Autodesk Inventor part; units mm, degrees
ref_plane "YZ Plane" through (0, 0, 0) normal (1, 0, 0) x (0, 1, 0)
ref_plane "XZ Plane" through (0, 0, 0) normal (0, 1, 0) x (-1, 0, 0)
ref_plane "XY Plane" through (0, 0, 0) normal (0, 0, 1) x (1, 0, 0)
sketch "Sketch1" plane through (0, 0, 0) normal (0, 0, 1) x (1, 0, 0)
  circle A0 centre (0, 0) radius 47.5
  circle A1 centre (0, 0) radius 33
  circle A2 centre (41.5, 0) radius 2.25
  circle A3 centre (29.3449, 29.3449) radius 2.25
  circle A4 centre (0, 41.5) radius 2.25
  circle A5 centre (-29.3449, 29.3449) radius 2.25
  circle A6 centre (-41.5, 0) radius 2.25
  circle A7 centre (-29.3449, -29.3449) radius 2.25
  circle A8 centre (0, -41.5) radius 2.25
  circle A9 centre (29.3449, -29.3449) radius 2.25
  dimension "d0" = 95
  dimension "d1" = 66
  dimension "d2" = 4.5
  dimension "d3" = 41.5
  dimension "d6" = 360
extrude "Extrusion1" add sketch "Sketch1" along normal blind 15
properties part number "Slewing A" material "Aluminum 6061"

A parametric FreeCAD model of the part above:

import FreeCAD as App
import Part
import Sketcher

V = App.Vector

doc = App.newDocument("Part")
params = doc.addObject("Spreadsheet::Sheet", "Params")
for row, (alias, value) in enumerate([
    ("sketch1_diameter", "95 mm"),
    ("sketch1_diameter2", "66 mm"),
    ("sketch1_diameter3", "4.5 mm"),
    ("pad1_length", "15 mm"),
], start=1):
    params.set(f"A{row}", alias)
    params.set(f"B{row}", "=" + value)
    params.setAlias(f"B{row}", alias)

body = doc.addObject("PartDesign::Body", "Body")

# Sketch on XY plane
sketch1 = body.newObject("Sketcher::SketchObject", "Sketch")
sketch1.AttachmentSupport = (doc.getObject("XY_Plane"), [""])
sketch1.MapMode = "FlatFace"
sketch1.addGeometry([
    Part.Circle(V(0, 0, 0), V(0, 0, 1), 47.5),  # 0
    Part.Circle(V(-29.3, -29.3, 0), V(0, 0, 1), 2.2),  # 1
    Part.Circle(V(0, -41.5, 0), V(0, 0, 1), 2.2),  # 2
    Part.Circle(V(29.3, -29.3, 0), V(0, 0, 1), 2.2),  # 3
    Part.Circle(V(-41.5, 0, 0), V(0, 0, 1), 2.2),  # 4
    Part.Circle(V(-29.3, 29.3, 0), V(0, 0, 1), 2.2),  # 5
    Part.Circle(V(0, 0, 0), V(0, 0, 1), 33),  # 6
    Part.Circle(V(41.5, 0, 0), V(0, 0, 1), 2.2),  # 7
    Part.Circle(V(0, 41.5, 0), V(0, 0, 1), 2.2),  # 8
    Part.Circle(V(29.3, 29.3, 0), V(0, 0, 1), 2.2),  # 9
], False)
sketch1.addConstraint([
    Sketcher.Constraint("Coincident", 0, 3, -1, 1),
    Sketcher.Constraint("Coincident", 6, 3, -1, 1),
    Sketcher.Constraint("Equal", 1, 2),
    Sketcher.Constraint("Equal", 2, 3),
    Sketcher.Constraint("Equal", 3, 4),
    Sketcher.Constraint("Equal", 4, 5),
    Sketcher.Constraint("Equal", 5, 7),
    Sketcher.Constraint("Equal", 7, 8),
    Sketcher.Constraint("Equal", 8, 9),
    Sketcher.Constraint("Symmetric", 3, 3, 5, 3, -1, 1),
    Sketcher.Constraint("Symmetric", 4, 3, 7, 3, -1, 1),
    Sketcher.Constraint("Symmetric", 2, 3, 8, 3, -1, 1),
    Sketcher.Constraint("Symmetric", 1, 3, 9, 3, -1, 1),
    Sketcher.Constraint("Symmetric", 1, 3, 3, 3, -2),
    Sketcher.Constraint("PointOnObject", 2, 3, -2),
    Sketcher.Constraint("PointOnObject", 4, 3, -1),
    Sketcher.Constraint("Diameter", 0, 95.0),
    Sketcher.Constraint("Diameter", 6, 66.0),
    Sketcher.Constraint("Diameter", 1, 4.5),
    Sketcher.Constraint("DistanceY", 2, 3, -1, 1, 41.5),
    Sketcher.Constraint("DistanceX", 4, 3, -1, 1, 41.5),
    Sketcher.Constraint("DistanceX", 1, 3, -1, 1, 29.345),
    Sketcher.Constraint("DistanceY", 1, 3, -1, 1, 29.345),
])
sketch1.setExpression("Constraints[16]", "Params.sketch1_diameter")
sketch1.setExpression("Constraints[17]", "Params.sketch1_diameter2")
sketch1.setExpression("Constraints[18]", "Params.sketch1_diameter3")
pad1 = body.newObject("PartDesign::Pad", "Pad")
pad1.Profile = sketch1
pad1.setExpression("Length", "Params.pad1_length")

doc.recompute()
